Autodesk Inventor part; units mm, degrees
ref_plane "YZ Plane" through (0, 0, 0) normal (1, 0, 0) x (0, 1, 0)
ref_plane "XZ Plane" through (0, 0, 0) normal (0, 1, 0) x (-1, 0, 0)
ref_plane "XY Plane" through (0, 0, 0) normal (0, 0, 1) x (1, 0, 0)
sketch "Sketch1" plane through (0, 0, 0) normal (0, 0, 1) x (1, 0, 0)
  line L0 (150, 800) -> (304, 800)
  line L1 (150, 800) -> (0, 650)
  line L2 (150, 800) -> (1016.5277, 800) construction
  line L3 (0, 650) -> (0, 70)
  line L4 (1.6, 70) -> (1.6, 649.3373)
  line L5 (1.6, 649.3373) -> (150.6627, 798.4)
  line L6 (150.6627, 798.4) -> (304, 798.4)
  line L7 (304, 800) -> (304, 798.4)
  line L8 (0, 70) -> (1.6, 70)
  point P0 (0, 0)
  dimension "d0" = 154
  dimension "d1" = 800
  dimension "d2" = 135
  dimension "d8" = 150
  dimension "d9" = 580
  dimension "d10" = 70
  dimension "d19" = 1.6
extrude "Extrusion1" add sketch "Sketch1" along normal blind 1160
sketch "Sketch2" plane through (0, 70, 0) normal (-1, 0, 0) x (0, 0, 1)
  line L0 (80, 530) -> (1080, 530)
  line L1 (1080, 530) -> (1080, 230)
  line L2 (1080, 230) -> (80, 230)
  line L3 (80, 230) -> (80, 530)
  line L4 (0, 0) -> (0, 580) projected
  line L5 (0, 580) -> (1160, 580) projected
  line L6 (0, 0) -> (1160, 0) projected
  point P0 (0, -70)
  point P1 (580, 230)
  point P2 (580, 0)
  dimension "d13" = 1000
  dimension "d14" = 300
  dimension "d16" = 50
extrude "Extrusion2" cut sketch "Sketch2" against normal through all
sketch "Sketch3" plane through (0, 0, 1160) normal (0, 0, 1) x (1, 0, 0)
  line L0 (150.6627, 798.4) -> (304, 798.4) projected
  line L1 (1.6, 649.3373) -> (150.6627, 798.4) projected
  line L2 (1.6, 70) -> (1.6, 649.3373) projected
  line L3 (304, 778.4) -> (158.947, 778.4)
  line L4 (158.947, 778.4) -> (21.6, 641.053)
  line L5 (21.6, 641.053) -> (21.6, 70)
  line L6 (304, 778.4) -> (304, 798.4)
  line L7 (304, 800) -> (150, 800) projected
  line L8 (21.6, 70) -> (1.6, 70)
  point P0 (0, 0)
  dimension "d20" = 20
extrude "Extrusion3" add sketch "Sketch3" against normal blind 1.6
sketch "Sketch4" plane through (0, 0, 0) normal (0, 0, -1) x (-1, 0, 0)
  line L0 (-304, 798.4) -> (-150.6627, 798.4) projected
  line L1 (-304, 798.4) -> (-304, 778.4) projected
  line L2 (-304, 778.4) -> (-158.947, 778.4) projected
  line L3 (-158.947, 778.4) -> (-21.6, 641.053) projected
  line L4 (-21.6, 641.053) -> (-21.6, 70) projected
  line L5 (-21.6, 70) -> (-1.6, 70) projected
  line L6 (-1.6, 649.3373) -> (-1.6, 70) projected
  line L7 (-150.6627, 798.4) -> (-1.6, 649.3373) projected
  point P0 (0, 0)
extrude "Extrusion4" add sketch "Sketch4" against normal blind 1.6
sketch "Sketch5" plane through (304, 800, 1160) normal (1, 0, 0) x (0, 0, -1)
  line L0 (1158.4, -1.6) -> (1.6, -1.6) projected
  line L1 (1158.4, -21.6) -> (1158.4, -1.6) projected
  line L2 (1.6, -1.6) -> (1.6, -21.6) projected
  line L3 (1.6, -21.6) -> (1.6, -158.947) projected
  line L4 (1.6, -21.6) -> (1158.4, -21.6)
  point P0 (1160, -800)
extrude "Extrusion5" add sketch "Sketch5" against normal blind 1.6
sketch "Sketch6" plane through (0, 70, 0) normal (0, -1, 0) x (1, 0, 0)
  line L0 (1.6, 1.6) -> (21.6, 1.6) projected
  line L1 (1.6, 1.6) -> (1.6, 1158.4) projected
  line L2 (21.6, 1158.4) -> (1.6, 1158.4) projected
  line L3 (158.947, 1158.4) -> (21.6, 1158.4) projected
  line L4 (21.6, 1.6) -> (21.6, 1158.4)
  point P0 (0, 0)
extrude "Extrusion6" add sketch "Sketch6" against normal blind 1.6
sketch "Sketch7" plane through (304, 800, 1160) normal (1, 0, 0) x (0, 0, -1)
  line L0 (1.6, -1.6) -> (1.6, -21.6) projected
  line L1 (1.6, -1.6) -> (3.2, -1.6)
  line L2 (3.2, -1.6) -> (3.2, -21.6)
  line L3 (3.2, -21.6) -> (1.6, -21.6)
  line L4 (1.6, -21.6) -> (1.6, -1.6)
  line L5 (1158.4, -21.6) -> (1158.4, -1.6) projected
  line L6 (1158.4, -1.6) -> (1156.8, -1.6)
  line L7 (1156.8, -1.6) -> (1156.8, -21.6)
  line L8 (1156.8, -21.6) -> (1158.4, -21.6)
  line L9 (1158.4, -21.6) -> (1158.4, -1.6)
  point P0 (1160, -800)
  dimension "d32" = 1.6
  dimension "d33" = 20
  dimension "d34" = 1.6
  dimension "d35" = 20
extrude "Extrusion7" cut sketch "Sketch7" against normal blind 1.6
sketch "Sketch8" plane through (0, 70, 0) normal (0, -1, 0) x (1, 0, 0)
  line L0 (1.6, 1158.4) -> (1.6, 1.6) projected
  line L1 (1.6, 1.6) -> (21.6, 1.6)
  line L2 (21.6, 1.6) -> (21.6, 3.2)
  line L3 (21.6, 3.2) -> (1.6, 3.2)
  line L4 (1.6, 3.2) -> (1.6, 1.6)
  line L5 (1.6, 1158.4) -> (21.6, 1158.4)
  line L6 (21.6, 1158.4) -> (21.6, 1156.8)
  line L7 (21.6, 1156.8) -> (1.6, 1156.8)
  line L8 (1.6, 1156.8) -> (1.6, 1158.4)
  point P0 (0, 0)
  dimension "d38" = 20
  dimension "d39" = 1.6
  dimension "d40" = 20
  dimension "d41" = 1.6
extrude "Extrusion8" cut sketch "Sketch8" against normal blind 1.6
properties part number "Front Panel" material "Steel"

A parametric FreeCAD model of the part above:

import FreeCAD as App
import Part
import Sketcher
Q = App.Units.Quantity


def add_polygon(sketch, points):
    """Adds a closed chain of lines whose ends are joined by coincident constraints."""
    first, n = sketch.GeometryCount, len(points)
    for a, b in zip(points, points[1:] + points[:1]):
        sketch.addGeometry(Part.LineSegment(App.Vector(*a, 0), App.Vector(*b, 0)), False)
    for i in range(n):
        sketch.addConstraint(Sketcher.Constraint("Coincident", first + i, 2, first + (i + 1) % n, 1))

doc = App.newDocument("Part")
body = doc.addObject("PartDesign::Body", "Body")

# Sketch on XY plane
sketch1 = doc.addObject("Sketcher::SketchObject", "Sketch")
body.addObject(sketch1)
sketch1.AttachmentSupport = (doc.XY_Plane, [""])
sketch1.MapMode = "FlatFace"
add_polygon(sketch1, [(304, 800), (150, 800), (0, 650), (0, 70), (1.6, 70), (1.6, 649.3373), (150.6627, 798.4), (304, 798.4)])  # lines 0-7
sketch1.addConstraint(Sketcher.Constraint("Horizontal", 0))
sketch1.addConstraint(Sketcher.Constraint("Vertical", 2))
sketch1.addConstraint(Sketcher.Constraint("Horizontal", 3))
sketch1.addConstraint(Sketcher.Constraint("Vertical", 4))
sketch1.addConstraint(Sketcher.Constraint("Horizontal", 6))
sketch1.addConstraint(Sketcher.Constraint("Vertical", 7))
sketch1.addConstraint(Sketcher.Constraint("PointOnObject", 1, 2, -2))
sketch1.addConstraint(Sketcher.Constraint("Parallel", 1, 5))
sketch1.addConstraint(Sketcher.Constraint("Equal", 3, 7))
sketch1.addConstraint(Sketcher.Constraint("DistanceX", 0, 2, 0, 1, 154.0))
sketch1.addConstraint(Sketcher.Constraint("DistanceY", 2, 2, 2, 1, 580.0))
sketch1.addConstraint(Sketcher.Constraint("Angle", 1, Q("-135 deg")))
sketch1.addConstraint(Sketcher.Constraint("DistanceX", 3, 1, 3, 2, 1.6))
sketch1.addConstraint(Sketcher.Constraint("DistanceX", -1, 1, 0, 2, 150.0))
sketch1.addConstraint(Sketcher.Constraint("DistanceY", -1, 1, 0, 2, 800.0))
sketch1.addConstraint(Sketcher.Constraint("DistanceX", 6, 1, 6, 2, 153.3373))
pad1 = doc.addObject("PartDesign::Pad", "Pad")
body.addObject(pad1)
pad1.Profile = sketch1
pad1.Length = 1160

# Sketch on YZ plane
sketch2 = doc.addObject("Sketcher::SketchObject", "Sketch001")
body.addObject(sketch2)
sketch2.AttachmentSupport = (doc.YZ_Plane, [""])
sketch2.MapMode = "FlatFace"
add_polygon(sketch2, [(600, 1080), (600, 80), (300, 80), (300, 1080)])  # lines 0-3
sketch2.addConstraint(Sketcher.Constraint("Vertical", 0))
sketch2.addConstraint(Sketcher.Constraint("Horizontal", 1))
sketch2.addConstraint(Sketcher.Constraint("Vertical", 2))
sketch2.addConstraint(Sketcher.Constraint("Horizontal", 3))
sketch2.addConstraint(Sketcher.Constraint("DistanceX", 1, 2, 1, 1, 300.0))
sketch2.addConstraint(Sketcher.Constraint("DistanceY", 0, 2, 0, 1, 1000.0))
sketch2.addConstraint(Sketcher.Constraint("DistanceX", -1, 1, 1, 2, 300.0))
sketch2.addConstraint(Sketcher.Constraint("DistanceY", -1, 1, 0, 2, 80.0))
pocket1 = doc.addObject("PartDesign::Pocket", "Pocket")
body.addObject(pocket1)
pocket1.Profile = sketch2
pocket1.Type = "ThroughAll"
pocket1.Reversed = True

# Sketch on XY plane
sketch3 = doc.addObject("Sketcher::SketchObject", "Sketch002")
body.addObject(sketch3)
sketch3.AttachmentSupport = (doc.XY_Plane, [""])
sketch3.MapMode = "FlatFace"
sketch3.AttachmentOffset = App.Placement(App.Vector(0, 0, 1160), App.Rotation())
add_polygon(sketch3, [(304, 798.4), (150.6627, 798.4), (1.6, 649.3373), (1.6, 70), (21.6, 70), (21.6, 641.053), (158.947, 778.4), (304, 778.4)])  # lines 0-7
sketch3.addConstraint(Sketcher.Constraint("Horizontal", 0))
sketch3.addConstraint(Sketcher.Constraint("Vertical", 2))
sketch3.addConstraint(Sketcher.Constraint("Horizontal", 3))
sketch3.addConstraint(Sketcher.Constraint("Vertical", 4))
sketch3.addConstraint(Sketcher.Constraint("Horizontal", 6))
sketch3.addConstraint(Sketcher.Constraint("Vertical", 7))
sketch3.addConstraint(Sketcher.Constraint("Parallel", 1, 5))
sketch3.addConstraint(Sketcher.Constraint("Equal", 3, 7))
sketch3.addConstraint(Sketcher.Constraint("DistanceX", 3, 1, 3, 2, 20.0))
sketch3.addConstraint(Sketcher.Constraint("Angle", 1, Q("-135 deg")))
sketch3.addConstraint(Sketcher.Constraint("DistanceY", -1, 1, 2, 2, 70.0))
sketch3.addConstraint(Sketcher.Constraint("DistanceX", -1, 1, 6, 2, 304.0))
sketch3.addConstraint(Sketcher.Constraint("DistanceY", -1, 1, 0, 2, 798.4))
sketch3.addConstraint(Sketcher.Constraint("DistanceX", -1, 1, 1, 2, 1.6))
sketch3.addConstraint(Sketcher.Constraint("DistanceX", 6, 1, 6, 2, 145.053))
sketch3.addConstraint(Sketcher.Constraint("DistanceX", 0, 2, 0, 1, 153.3373))
pad2 = doc.addObject("PartDesign::Pad", "Pad001")
body.addObject(pad2)
pad2.Profile = sketch3
pad2.Length = 1.6
pad2.Reversed = True

# Sketch on XY plane
sketch4 = doc.addObject("Sketcher::SketchObject", "Sketch003")
body.addObject(sketch4)
sketch4.AttachmentSupport = (doc.XY_Plane, [""])
sketch4.MapMode = "FlatFace"
add_polygon(sketch4, [(150.6627, 798.4), (304, 798.4), (304, 778.4), (158.947, 778.4), (21.6, 641.053), (21.6, 70), (1.6, 70), (1.6, 649.3373)])  # lines 0-7
sketch4.addConstraint(Sketcher.Constraint("Horizontal", 0))
sketch4.addConstraint(Sketcher.Constraint("Vertical", 1))
sketch4.addConstraint(Sketcher.Constraint("Horizontal", 2))
sketch4.addConstraint(Sketcher.Constraint("Vertical", 4))
sketch4.addConstraint(Sketcher.Constraint("Horizontal", 5))
sketch4.addConstraint(Sketcher.Constraint("Vertical", 6))
sketch4.addConstraint(Sketcher.Constraint("Parallel", 3, 7))
sketch4.addConstraint(Sketcher.Constraint("Equal", 5, 1))
sketch4.addConstraint(Sketcher.Constraint("DistanceX", 5, 2, 5, 1, 20.0))
sketch4.addConstraint(Sketcher.Constraint("Angle", 3, Q("-135 deg")))
sketch4.addConstraint(Sketcher.Constraint("DistanceX", -1, 1, 0, 2, 304.0))
sketch4.addConstraint(Sketcher.Constraint("DistanceY", -1, 1, 4, 2, 70.0))
sketch4.addConstraint(Sketcher.Constraint("DistanceY", -1, 1, 0, 2, 798.4))
sketch4.addConstraint(Sketcher.Constraint("DistanceX", -1, 1, 3, 2, 21.6))
sketch4.addConstraint(Sketcher.Constraint("DistanceX", 2, 2, 2, 1, 145.053))
sketch4.addConstraint(Sketcher.Constraint("DistanceX", 0, 1, 0, 2, 153.3373))
pad3 = doc.addObject("PartDesign::Pad", "Pad002")
body.addObject(pad3)
pad3.Profile = sketch4
pad3.Length = 1.6

# Sketch on YZ plane
sketch5 = doc.addObject("Sketcher::SketchObject", "Sketch004")
body.addObject(sketch5)
sketch5.AttachmentSupport = (doc.YZ_Plane, [""])
sketch5.MapMode = "FlatFace"
sketch5.AttachmentOffset = App.Placement(App.Vector(0, 0, 304), App.Rotation())
add_polygon(sketch5, [(778.4, 1.6), (798.4, 1.6), (798.4, 1158.4), (778.4, 1158.4)])  # lines 0-3
sketch5.addConstraint(Sketcher.Constraint("Horizontal", 0))
sketch5.addConstraint(Sketcher.Constraint("Vertical", 1))
sketch5.addConstraint(Sketcher.Constraint("Horizontal", 2))
sketch5.addConstraint(Sketcher.Constraint("Vertical", 3))
sketch5.addConstraint(Sketcher.Constraint("DistanceX", 0, 1, 0, 2, 20.0))
sketch5.addConstraint(Sketcher.Constraint("DistanceY", 1, 1, 1, 2, 1156.8))
sketch5.addConstraint(Sketcher.Constraint("DistanceX", -1, 1, 0, 2, 798.4))
sketch5.addConstraint(Sketcher.Constraint("DistanceY", -1, 1, 0, 2, 1.6))
pad4 = doc.addObject("PartDesign::Pad", "Pad003")
body.addObject(pad4)
pad4.Profile = sketch5
pad4.Length = 1.6
pad4.Reversed = True

# Sketch on XZ plane
sketch6 = doc.addObject("Sketcher::SketchObject", "Sketch005")
body.addObject(sketch6)
sketch6.AttachmentSupport = (doc.XZ_Plane, [""])
sketch6.MapMode = "FlatFace"
sketch6.AttachmentOffset = App.Placement(App.Vector(0, 0, -70), App.Rotation())
add_polygon(sketch6, [(1.6, 1158.4), (1.6, 1.6), (21.6, 1.6), (21.6, 1158.4)])  # lines 0-3
sketch6.addConstraint(Sketcher.Constraint("Vertical", 0))
sketch6.addConstraint(Sketcher.Constraint("Horizontal", 1))
sketch6.addConstraint(Sketcher.Constraint("Vertical", 2))
sketch6.addConstraint(Sketcher.Constraint("Horizontal", 3))
sketch6.addConstraint(Sketcher.Constraint("DistanceX", 1, 1, 1, 2, 20.0))
sketch6.addConstraint(Sketcher.Constraint("DistanceY", 0, 2, 0, 1, 1156.8))
sketch6.addConstraint(Sketcher.Constraint("DistanceX", -1, 1, 0, 2, 1.6))
sketch6.addConstraint(Sketcher.Constraint("DistanceY", -1, 1, 0, 2, 1.6))
pad5 = doc.addObject("PartDesign::Pad", "Pad004")
body.addObject(pad5)
pad5.Profile = sketch6
pad5.Length = 1.6
pad5.Reversed = True

# Sketch on YZ plane
sketch7 = doc.addObject("Sketcher::SketchObject", "Sketch006")
body.addObject(sketch7)
sketch7.AttachmentSupport = (doc.YZ_Plane, [""])
sketch7.MapMode = "FlatFace"
sketch7.AttachmentOffset = App.Placement(App.Vector(0, 0, 304), App.Rotation())
add_polygon(sketch7, [(798.4, 1156.8), (798.4, 1158.4), (778.4, 1158.4), (778.4, 1156.8)])  # lines 0-3
add_polygon(sketch7, [(778.4, 3.2), (778.4, 1.6), (798.4, 1.6), (798.4, 3.2)])  # lines 4-7
sketch7.addConstraint(Sketcher.Constraint("Vertical", 0))
sketch7.addConstraint(Sketcher.Constraint("Horizontal", 1))
sketch7.addConstraint(Sketcher.Constraint("Vertical", 2))
sketch7.addConstraint(Sketcher.Constraint("Horizontal", 3))
sketch7.addConstraint(Sketcher.Constraint("Vertical", 4))
sketch7.addConstraint(Sketcher.Constraint("Horizontal", 5))
sketch7.addConstraint(Sketcher.Constraint("Vertical", 6))
sketch7.addConstraint(Sketcher.Constraint("Horizontal", 7))
sketch7.addConstraint(Sketcher.Constraint("Vertical", 2, 2, 4, 2))
sketch7.addConstraint(Sketcher.Constraint("Vertical", 3, 2, 5, 2))
sketch7.addConstraint(Sketcher.Constraint("Equal", 2, 4))
sketch7.addConstraint(Sketcher.Constraint("DistanceX", 1, 2, 1, 1, 20.0))
sketch7.addConstraint(Sketcher.Constraint("DistanceY", 0, 1, 0, 2, 1.6))
sketch7.addConstraint(Sketcher.Constraint("DistanceY", -1, 1, 4, 2, 1.6))
sketch7.addConstraint(Sketcher.Constraint("DistanceX", -1, 1, 0, 2, 798.4))
sketch7.addConstraint(Sketcher.Constraint("DistanceY", -1, 1, 0, 2, 1158.4))
pocket2 = doc.addObject("PartDesign::Pocket", "Pocket001")
body.addObject(pocket2)
pocket2.Profile = sketch7
pocket2.Length = 1.6

# Sketch on XZ plane
sketch8 = doc.addObject("Sketcher::SketchObject", "Sketch007")
body.addObject(sketch8)
sketch8.AttachmentSupport = (doc.XZ_Plane, [""])
sketch8.MapMode = "FlatFace"
sketch8.AttachmentOffset = App.Placement(App.Vector(0, 0, -70), App.Rotation())
add_polygon(sketch8, [(21.6, 1158.4), (1.6, 1158.4), (1.6, 1156.8), (21.6, 1156.8)])  # lines 0-3
add_polygon(sketch8, [(21.6, 3.2), (1.6, 3.2), (1.6, 1.6), (21.6, 1.6)])  # lines 4-7
sketch8.addConstraint(Sketcher.Constraint("Horizontal", 0))
sketch8.addConstraint(Sketcher.Constraint("Vertical", 1))
sketch8.addConstraint(Sketcher.Constraint("Horizontal", 2))
sketch8.addConstraint(Sketcher.Constraint("Vertical", 3))
sketch8.addConstraint(Sketcher.Constraint("Horizontal", 4))
sketch8.addConstraint(Sketcher.Constraint("Vertical", 5))
sketch8.addConstraint(Sketcher.Constraint("Horizontal", 6))
sketch8.addConstraint(Sketcher.Constraint("Vertical", 7))
sketch8.addConstraint(Sketcher.Constraint("Vertical", 1, 2, 4, 2))
sketch8.addConstraint(Sketcher.Constraint("Vertical", 3, 2, 6, 2))
sketch8.addConstraint(Sketcher.Constraint("Equal", 3, 5))
sketch8.addConstraint(Sketcher.Constraint("DistanceX", 0, 2, 0, 1, 20.0))
sketch8.addConstraint(Sketcher.Constraint("DistanceY", 1, 2, 1, 1, 1.6))
sketch8.addConstraint(Sketcher.Constraint("DistanceX", -1, 1, 0, 2, 1.6))
sketch8.addConstraint(Sketcher.Constraint("DistanceY", -1, 1, 5, 2, 1.6))
sketch8.addConstraint(Sketcher.Constraint("DistanceY", -1, 1, 0, 2, 1158.4))
pocket3 = doc.addObject("PartDesign::Pocket", "Pocket002")
body.addObject(pocket3)
pocket3.Profile = sketch8
pocket3.Length = 1.6

doc.recompute()
